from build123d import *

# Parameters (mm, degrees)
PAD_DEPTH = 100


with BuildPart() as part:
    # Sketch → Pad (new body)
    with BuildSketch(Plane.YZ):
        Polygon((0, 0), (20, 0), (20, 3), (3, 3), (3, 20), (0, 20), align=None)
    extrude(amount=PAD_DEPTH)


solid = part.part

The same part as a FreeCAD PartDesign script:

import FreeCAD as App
import Part
import Sketcher
from FreeCAD import Vector

doc = App.newDocument("Part")
body = doc.addObject("PartDesign::Body", "Body")

# Sketch on YZ plane
sketch1 = body.newObject("Sketcher::SketchObject", "Sketch")
sketch1.AttachmentSupport = (doc.getObject("YZ_Plane"), [""])
sketch1.MapMode = "FlatFace"
sketch1.addGeometry(Part.LineSegment(Vector(0, 0, 0), Vector(20, 0, 0)), False)
sketch1.addGeometry(Part.LineSegment(Vector(20, 0, 0), Vector(20, 3, 0)), False)
sketch1.addGeometry(Part.LineSegment(Vector(20, 3, 0), Vector(3, 3, 0)), False)
sketch1.addGeometry(Part.LineSegment(Vector(3, 3, 0), Vector(3, 20, 0)), False)
sketch1.addGeometry(Part.LineSegment(Vector(3, 20, 0), Vector(0, 20, 0)), False)
sketch1.addGeometry(Part.LineSegment(Vector(0, 20, 0), Vector(0, 0, 0)), False)
sketch1.addConstraint(Sketcher.Constraint("Coincident", 0, 2, 1, 1))
sketch1.addConstraint(Sketcher.Constraint("Coincident", 1, 2, 2, 1))
sketch1.addConstraint(Sketcher.Constraint("Coincident", 2, 2, 3, 1))
sketch1.addConstraint(Sketcher.Constraint("Coincident", 3, 2, 4, 1))
sketch1.addConstraint(Sketcher.Constraint("Coincident", 4, 2, 5, 1))
sketch1.addConstraint(Sketcher.Constraint("Coincident", 5, 2, 0, 1))
sketch1.addConstraint(Sketcher.Constraint("Horizontal", 0))
sketch1.addConstraint(Sketcher.Constraint("Vertical", 1))
sketch1.addConstraint(Sketcher.Constraint("Horizontal", 2))
sketch1.addConstraint(Sketcher.Constraint("Vertical", 3))
sketch1.addConstraint(Sketcher.Constraint("Horizontal", 4))
sketch1.addConstraint(Sketcher.Constraint("Vertical", 5))
sketch1.addConstraint(Sketcher.Constraint("Coincident", 5, 2, -1, 1))
sketch1.addConstraint(Sketcher.Constraint("Equal", 4, 1))
sketch1.addConstraint(Sketcher.Constraint("Equal", 2, 3))
sketch1.addConstraint(Sketcher.Constraint("DistanceX", 0, 1, 0, 2, 20.0))
sketch1.addConstraint(Sketcher.Constraint("DistanceX", 2, 2, 2, 1, 17.0))
pad1 = body.newObject("PartDesign::Pad", "Pad")
pad1.Profile = sketch1
pad1.Length = 100

doc.recompute()
